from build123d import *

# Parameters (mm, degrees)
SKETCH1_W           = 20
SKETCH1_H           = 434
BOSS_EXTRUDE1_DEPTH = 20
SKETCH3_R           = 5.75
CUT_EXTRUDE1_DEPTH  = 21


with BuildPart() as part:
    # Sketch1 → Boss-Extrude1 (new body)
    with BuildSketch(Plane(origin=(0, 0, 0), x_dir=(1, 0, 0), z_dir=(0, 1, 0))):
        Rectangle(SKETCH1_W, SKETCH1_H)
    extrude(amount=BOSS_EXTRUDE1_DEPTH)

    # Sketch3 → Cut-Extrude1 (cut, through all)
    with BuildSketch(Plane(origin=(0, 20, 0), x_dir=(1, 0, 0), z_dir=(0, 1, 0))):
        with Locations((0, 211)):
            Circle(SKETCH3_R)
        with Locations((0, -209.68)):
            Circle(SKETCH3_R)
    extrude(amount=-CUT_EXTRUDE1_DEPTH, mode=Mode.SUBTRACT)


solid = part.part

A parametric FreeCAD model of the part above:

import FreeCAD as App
import Part
import Sketcher

V = App.Vector
Q = App.Units.Quantity


def add_polygon(sketch, points):
    """Adds a closed chain of lines whose ends are joined by coincident constraints."""
    first, n = sketch.GeometryCount, len(points)
    for a, b in zip(points, points[1:] + points[:1]):
        sketch.addGeometry(Part.LineSegment(App.Vector(*a, 0), App.Vector(*b, 0)), False)
    for i in range(n):
        sketch.addConstraint(Sketcher.Constraint("Coincident", first + i, 2, first + (i + 1) % n, 1))

doc = App.newDocument("Part")
body = doc.addObject("PartDesign::Body", "Body")

# Sketch on XZ plane
sketch1 = doc.addObject("Sketcher::SketchObject", "Sketch")
body.addObject(sketch1)
sketch1.AttachmentSupport = (doc.XZ_Plane, [""])
sketch1.MapMode = "FlatFace"
add_polygon(sketch1, [(-10, -217), (-10, 217), (10, 217), (10, -217)])  # lines 0-3
sketch1.addConstraint([
    Sketcher.Constraint("Vertical", 0),
    Sketcher.Constraint("Horizontal", 1),
    Sketcher.Constraint("Vertical", 2),
    Sketcher.Constraint("Horizontal", 3),
    Sketcher.Constraint("Symmetric", 0, 2, 2, 2, -1, 1),
    Sketcher.Constraint("DistanceX", 1, 1, 1, 2, Q("20 mm")),
    Sketcher.Constraint("DistanceY", 0, 1, 0, 2, Q("434 mm")),
])
pad1 = doc.addObject("PartDesign::Pad", "Pad")
body.addObject(pad1)
pad1.Profile = sketch1
pad1.Length = 20
pad1.Reversed = True

# Sketch on XZ plane
sketch2 = doc.addObject("Sketcher::SketchObject", "Sketch001")
body.addObject(sketch2)
sketch2.AttachmentSupport = (doc.XZ_Plane, [""])
sketch2.MapMode = "FlatFace"
sketch2.AttachmentOffset = App.Placement(V(0, 0, -20), App.Rotation())
sketch2.addGeometry([
    Part.Circle(V(0, -211, 0), V(0, 0, 1), 6),
    Part.Circle(V(0, 210, 0), V(0, 0, 1), 6),
], False)
sketch2.addConstraint([
    Sketcher.Constraint("Equal", 0, 1),
    Sketcher.Constraint("PointOnObject", 0, 3, -2),
    Sketcher.Constraint("PointOnObject", 1, 3, -2),
    Sketcher.Constraint("Diameter", 0, Q("11.5 mm")),
    Sketcher.Constraint("DistanceY", 0, 3, -1, 1, Q("211 mm")),
    Sketcher.Constraint("DistanceY", -1, 1, 1, 3, Q("209.68 mm")),
])
pocket1 = doc.addObject("PartDesign::Pocket", "Pocket")
body.addObject(pocket1)
pocket1.Profile = sketch2
pocket1.Type = "ThroughAll"
pocket1.Reversed = True

doc.recompute()
